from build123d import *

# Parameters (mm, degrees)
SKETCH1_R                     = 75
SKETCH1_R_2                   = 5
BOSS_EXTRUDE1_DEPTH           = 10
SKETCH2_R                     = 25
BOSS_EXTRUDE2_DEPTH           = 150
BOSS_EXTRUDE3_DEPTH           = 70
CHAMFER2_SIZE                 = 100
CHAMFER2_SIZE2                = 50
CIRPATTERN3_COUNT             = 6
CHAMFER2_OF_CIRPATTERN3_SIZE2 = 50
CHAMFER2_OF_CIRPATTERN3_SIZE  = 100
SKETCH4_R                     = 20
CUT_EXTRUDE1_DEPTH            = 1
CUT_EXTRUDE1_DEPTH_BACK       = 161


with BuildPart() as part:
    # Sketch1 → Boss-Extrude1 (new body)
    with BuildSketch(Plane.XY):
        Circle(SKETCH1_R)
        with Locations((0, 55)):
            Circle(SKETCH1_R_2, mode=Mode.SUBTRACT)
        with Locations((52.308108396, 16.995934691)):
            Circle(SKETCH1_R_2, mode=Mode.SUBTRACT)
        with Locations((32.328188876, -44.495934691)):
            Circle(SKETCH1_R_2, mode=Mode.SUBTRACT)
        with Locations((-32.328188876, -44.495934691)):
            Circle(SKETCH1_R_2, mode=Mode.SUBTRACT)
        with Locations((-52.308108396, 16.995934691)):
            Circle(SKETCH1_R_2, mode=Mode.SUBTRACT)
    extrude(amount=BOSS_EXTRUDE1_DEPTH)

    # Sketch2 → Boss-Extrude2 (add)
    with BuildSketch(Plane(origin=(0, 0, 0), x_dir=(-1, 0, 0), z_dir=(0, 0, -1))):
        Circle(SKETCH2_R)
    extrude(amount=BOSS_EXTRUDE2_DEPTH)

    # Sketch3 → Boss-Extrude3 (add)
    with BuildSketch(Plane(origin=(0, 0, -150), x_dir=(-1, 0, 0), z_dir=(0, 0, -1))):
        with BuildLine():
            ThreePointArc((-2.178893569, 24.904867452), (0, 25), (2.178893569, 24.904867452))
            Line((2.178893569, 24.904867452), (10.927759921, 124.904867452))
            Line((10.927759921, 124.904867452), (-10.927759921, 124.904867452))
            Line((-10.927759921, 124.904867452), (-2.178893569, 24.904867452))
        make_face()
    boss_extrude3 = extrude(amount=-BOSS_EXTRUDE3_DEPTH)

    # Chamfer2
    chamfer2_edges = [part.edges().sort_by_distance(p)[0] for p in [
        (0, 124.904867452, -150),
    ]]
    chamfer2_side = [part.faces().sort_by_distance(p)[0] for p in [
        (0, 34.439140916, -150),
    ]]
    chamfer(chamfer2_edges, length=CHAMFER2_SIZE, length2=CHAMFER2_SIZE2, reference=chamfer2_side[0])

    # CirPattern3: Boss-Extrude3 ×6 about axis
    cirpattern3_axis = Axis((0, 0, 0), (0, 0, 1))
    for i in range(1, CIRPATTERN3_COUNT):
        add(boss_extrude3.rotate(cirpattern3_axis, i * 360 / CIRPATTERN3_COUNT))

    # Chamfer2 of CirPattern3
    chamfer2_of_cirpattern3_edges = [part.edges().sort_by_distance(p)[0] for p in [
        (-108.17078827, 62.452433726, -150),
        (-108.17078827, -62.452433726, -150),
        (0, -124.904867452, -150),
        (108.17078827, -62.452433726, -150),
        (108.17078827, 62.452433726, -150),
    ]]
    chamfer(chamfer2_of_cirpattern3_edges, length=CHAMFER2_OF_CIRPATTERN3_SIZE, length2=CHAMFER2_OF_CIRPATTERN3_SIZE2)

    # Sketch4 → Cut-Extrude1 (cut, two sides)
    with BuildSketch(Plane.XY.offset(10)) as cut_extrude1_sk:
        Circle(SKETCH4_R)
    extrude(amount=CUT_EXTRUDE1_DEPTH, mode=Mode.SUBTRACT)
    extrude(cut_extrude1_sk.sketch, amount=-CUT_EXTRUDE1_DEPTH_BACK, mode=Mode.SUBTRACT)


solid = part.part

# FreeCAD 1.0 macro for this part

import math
import FreeCAD as App
import Part
import Sketcher

V = App.Vector
Q = App.Units.Quantity


def edges_at(feature, points):
    """Names of the edges that pass closest to the given points."""
    edges = feature.Shape.Edges
    near = lambda p: min(range(len(edges)), key=lambda i: edges[i].distToShape(Part.Vertex(*p))[0])
    return sorted({f"Edge{near(p) + 1}" for p in points})

doc = App.newDocument("Part")
body = doc.addObject("PartDesign::Body", "Body")

# Sketch on XY plane
sketch1 = doc.addObject("Sketcher::SketchObject", "Sketch")
body.addObject(sketch1)
sketch1.AttachmentSupport = (doc.XY_Plane, [""])
sketch1.MapMode = "FlatFace"
sketch1.addGeometry(Part.Circle(V(0, 0, 0), V(0, 0, 1), 75), False)
sketch1.addGeometry(Part.Circle(V(-32, -44, 0), V(0, 0, 1), 5), False)
sketch1.addGeometry(Part.Circle(V(32, -44, 0), V(0, 0, 1), 5), False)
sketch1.addGeometry(Part.Circle(V(-52, 17, 0), V(0, 0, 1), 5), False)
sketch1.addGeometry(Part.Circle(V(52, 17, 0), V(0, 0, 1), 5), False)
sketch1.addGeometry(Part.Circle(V(0, 55, 0), V(0, 0, 1), 5), False)
sketch1.addConstraint(Sketcher.Constraint("Coincident", 0, 3, -1, 1))
sketch1.addConstraint(Sketcher.Constraint("Equal", 1, 2))
sketch1.addConstraint(Sketcher.Constraint("Equal", 2, 3))
sketch1.addConstraint(Sketcher.Constraint("Equal", 3, 4))
sketch1.addConstraint(Sketcher.Constraint("Equal", 4, 5))
sketch1.addConstraint(Sketcher.Constraint("Symmetric", 1, 3, 2, 3, -2))
sketch1.addConstraint(Sketcher.Constraint("Symmetric", 3, 3, 4, 3, -2))
sketch1.addConstraint(Sketcher.Constraint("PointOnObject", 5, 3, -2))
sketch1.addConstraint(Sketcher.Constraint("Diameter", 0, Q("150 mm")))
sketch1.addConstraint(Sketcher.Constraint("Diameter", 1, Q("10 mm")))
sketch1.addConstraint(Sketcher.Constraint("DistanceY", -1, 1, 5, 3, Q("55 mm")))
sketch1.addConstraint(Sketcher.Constraint("DistanceX", 1, 3, -1, 1, Q("32.328189 mm")))
sketch1.addConstraint(Sketcher.Constraint("DistanceX", 3, 3, -1, 1, Q("52.308108 mm")))
sketch1.addConstraint(Sketcher.Constraint("DistanceY", 1, 3, 3, 3, Q("61.491869 mm")))
sketch1.addConstraint(Sketcher.Constraint("DistanceY", 1, 3, -1, 1, Q("44.495935 mm")))
pad1 = doc.addObject("PartDesign::Pad", "Pad")
body.addObject(pad1)
pad1.Profile = sketch1
pad1.Length = 10

# Sketch on XY plane
sketch2 = doc.addObject("Sketcher::SketchObject", "Sketch001")
body.addObject(sketch2)
sketch2.AttachmentSupport = (doc.XY_Plane, [""])
sketch2.MapMode = "FlatFace"
sketch2.addGeometry(Part.Circle(V(0, 0, 0), V(0, 0, 1), 25), False)
sketch2.addConstraint(Sketcher.Constraint("Coincident", 0, 3, -1, 1))
sketch2.addConstraint(Sketcher.Constraint("Diameter", 0, Q("50 mm")))
pad2 = doc.addObject("PartDesign::Pad", "Pad001")
body.addObject(pad2)
pad2.Profile = sketch2
pad2.Length = 150
pad2.Reversed = True

# Sketch on XY plane
sketch3 = doc.addObject("Sketcher::SketchObject", "Sketch002")
body.addObject(sketch3)
sketch3.AttachmentSupport = (doc.XY_Plane, [""])
sketch3.MapMode = "FlatFace"
sketch3.AttachmentOffset = App.Placement(V(0, 0, -150), App.Rotation())
sketch3.addGeometry(Part.ArcOfCircle(Part.Circle(V(0, 0, 0), V(0, 0, 1), 25), math.radians(85), math.radians(95)), False)
sketch3.addGeometry(Part.LineSegment(V(-2.2, 24.9, 0), V(-10.9, 124.9, 0)), False)
sketch3.addGeometry(Part.LineSegment(V(-10.9, 124.9, 0), V(10.9, 124.9, 0)), False)
sketch3.addGeometry(Part.LineSegment(V(10.9, 124.9, 0), V(2.2, 24.9, 0)), False)
sketch3.addConstraint(Sketcher.Constraint("Coincident", 0, 2, 1, 1))
sketch3.addConstraint(Sketcher.Constraint("Coincident", 1, 2, 2, 1))
sketch3.addConstraint(Sketcher.Constraint("Coincident", 2, 2, 3, 1))
sketch3.addConstraint(Sketcher.Constraint("Coincident", 3, 2, 0, 1))
sketch3.addConstraint(Sketcher.Constraint("Horizontal", 2))
sketch3.addConstraint(Sketcher.Constraint("Coincident", 0, 3, -1, 1))
sketch3.addConstraint(Sketcher.Constraint("Horizontal", 0, 2, 3, 2))
sketch3.addConstraint(Sketcher.Constraint("Equal", 1, 3))
sketch3.addConstraint(Sketcher.Constraint("Radius", 0, Q("25 mm")))
sketch3.addConstraint(Sketcher.Constraint("Angle", 1, Q("95 deg")))
sketch3.addConstraint(Sketcher.Constraint("DistanceY", 0, 2, 1, 2, Q("100 mm")))
sketch3.addConstraint(Sketcher.Constraint("DistanceX", 2, 1, 2, 2, Q("21.85552 mm")))
pad3 = doc.addObject("PartDesign::Pad", "Pad002")
body.addObject(pad3)
pad3.Profile = sketch3
pad3.Length = 70
doc.recompute()

chamfer = doc.addObject("PartDesign::Chamfer", "Chamfer")
body.addObject(chamfer)
chamfer.Base = (pad3, edges_at(pad3, [(0, 124.905, -150)]))
chamfer.ChamferType = "Two distances"
chamfer.Size = 100
chamfer.Size2 = 50
chamfer.FlipDirection = True
doc.recompute()

polarpattern = doc.addObject("PartDesign::PolarPattern", "PolarPattern")
body.addObject(polarpattern)
polarpattern.Originals = [pad3]
polarpattern.Axis = (doc.Z_Axis, [""])
polarpattern.Angle = 360
polarpattern.Occurrences = 6
body.Tip = polarpattern
doc.recompute()

chamfer2 = doc.addObject("PartDesign::Chamfer", "Chamfer001")
body.addObject(chamfer2)
chamfer2.Base = (polarpattern, edges_at(polarpattern, [
    (-108.171, 62.452, -150),
    (-108.171, -62.452, -150),
    (0, -124.905, -150),
    (108.171, -62.452, -150),
    (108.171, 62.452, -150),
]))
chamfer2.ChamferType = "Two distances"
chamfer2.Size = 100
chamfer2.Size2 = 50
chamfer2.FlipDirection = True

# Sketch on XY plane
sketch4 = doc.addObject("Sketcher::SketchObject", "Sketch003")
body.addObject(sketch4)
sketch4.AttachmentSupport = (doc.XY_Plane, [""])
sketch4.MapMode = "FlatFace"
sketch4.AttachmentOffset = App.Placement(V(0, 0, 10), App.Rotation())
sketch4.addGeometry(Part.Circle(V(0, 0, 0), V(0, 0, 1), 20), False)
sketch4.addConstraint(Sketcher.Constraint("Coincident", 0, 3, -1, 1))
sketch4.addConstraint(Sketcher.Constraint("Diameter", 0, Q("40 mm")))
pocket1 = doc.addObject("PartDesign::Pocket", "Pocket")
body.addObject(pocket1)
pocket1.Profile = sketch4
pocket1.Type = "ThroughAll"
pocket1.Midplane = True

doc.recompute()
